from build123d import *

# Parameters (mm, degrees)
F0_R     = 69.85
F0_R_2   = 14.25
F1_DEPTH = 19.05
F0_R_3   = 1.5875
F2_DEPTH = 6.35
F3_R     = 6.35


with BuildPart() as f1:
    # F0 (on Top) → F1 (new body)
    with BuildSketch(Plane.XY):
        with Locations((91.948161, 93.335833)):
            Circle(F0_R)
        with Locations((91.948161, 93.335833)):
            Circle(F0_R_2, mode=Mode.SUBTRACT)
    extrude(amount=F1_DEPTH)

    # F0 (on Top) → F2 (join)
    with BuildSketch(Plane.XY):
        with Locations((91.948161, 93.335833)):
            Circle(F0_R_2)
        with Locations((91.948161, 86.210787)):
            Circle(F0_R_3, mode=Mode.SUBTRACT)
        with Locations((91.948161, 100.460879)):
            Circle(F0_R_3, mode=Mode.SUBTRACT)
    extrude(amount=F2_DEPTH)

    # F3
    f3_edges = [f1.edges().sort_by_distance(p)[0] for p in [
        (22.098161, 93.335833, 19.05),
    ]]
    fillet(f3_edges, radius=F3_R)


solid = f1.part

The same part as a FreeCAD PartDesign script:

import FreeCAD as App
import Part
import Sketcher
Q = App.Units.Quantity


def edges_at(feature, points):
    """Names of the edges that pass closest to the given points."""
    edges = feature.Shape.Edges
    near = lambda p: min(range(len(edges)), key=lambda i: edges[i].distToShape(Part.Vertex(*p))[0])
    return sorted({f"Edge{near(p) + 1}" for p in points})

doc = App.newDocument("Part")
params = doc.addObject("Spreadsheet::Sheet", "Params")
for row, (alias, value) in enumerate([
    ("sketch1_diameter", "5.5 in"),
    ("pad1_length", "0.75 in"),
    ("sketch2_diameter", "0.125 in"),
    ("pad2_length", "0.25 in"),
    ("fillet_radius", "0.25 in"),
], start=1):
    params.set(f"A{row}", alias)
    params.set(f"B{row}", "=" + value)
    params.setAlias(f"B{row}", alias)

body = doc.addObject("PartDesign::Body", "Body")

# Sketch on XY plane
sketch1 = body.newObject("Sketcher::SketchObject", "Sketch")
sketch1.AttachmentSupport = (doc.getObject("XY_Plane"), [""])
sketch1.MapMode = "FlatFace"
sketch1.addGeometry([
    Part.Circle(App.Vector(92, 93, 0), App.Vector(0, 0, 1), 70),
    Part.Circle(App.Vector(92, 93, 0), App.Vector(0, 0, 1), 14),
], False)
sketch1.addConstraint([
    Sketcher.Constraint("Coincident", 1, 3, 0, 3),
    Sketcher.Constraint("Diameter", 0, Q("5.5 in")),
    Sketcher.Constraint("Diameter", 1, 28.5),
    Sketcher.Constraint("DistanceX", -1, 1, 0, 3, 91.948161),
    Sketcher.Constraint("DistanceY", -1, 1, 0, 3, 93.335833),
])
sketch1.setExpression("Constraints[1]", "Params.sketch1_diameter")
pad1 = body.newObject("PartDesign::Pad", "Pad")
pad1.Profile = sketch1
pad1.setExpression("Length", "Params.pad1_length")

# Sketch on XY plane
sketch2 = body.newObject("Sketcher::SketchObject", "Sketch001")
sketch2.AttachmentSupport = (doc.getObject("XY_Plane"), [""])
sketch2.MapMode = "FlatFace"
sketch2.addGeometry([
    Part.Circle(App.Vector(91.9, 93.3, 0), App.Vector(0, 0, 1), 14.2),
    Part.Circle(App.Vector(91.9, 86.2, 0), App.Vector(0, 0, 1), 1.6),
    Part.Circle(App.Vector(91.9, 100.5, 0), App.Vector(0, 0, 1), 1.6),
], False)
sketch2.addConstraint([
    Sketcher.Constraint("Equal", 1, 2),
    Sketcher.Constraint("Vertical", 0, 3, 1, 3),
    Sketcher.Constraint("Vertical", 1, 3, 2, 3),
    Sketcher.Constraint("Diameter", 1, Q("0.125 in")),
    Sketcher.Constraint("Diameter", 0, 28.5),
    Sketcher.Constraint("DistanceX", -1, 1, 0, 3, 91.948161),
    Sketcher.Constraint("DistanceY", -1, 1, 2, 3, 100.460879),
    Sketcher.Constraint("DistanceY", -1, 1, 0, 3, 93.335833),
    Sketcher.Constraint("DistanceY", -1, 1, 1, 3, 86.210787),
])
sketch2.setExpression("Constraints[3]", "Params.sketch2_diameter")
pad2 = body.newObject("PartDesign::Pad", "Pad001")
pad2.Profile = sketch2
pad2.setExpression("Length", "Params.pad2_length")
doc.recompute()

fillet = body.newObject("PartDesign::Fillet", "Fillet")
fillet.Base = (pad2, edges_at(pad2, [(22.098, 93.336, 19.05)]))
fillet.setExpression("Radius", "Params.fillet_radius")

doc.recompute()
